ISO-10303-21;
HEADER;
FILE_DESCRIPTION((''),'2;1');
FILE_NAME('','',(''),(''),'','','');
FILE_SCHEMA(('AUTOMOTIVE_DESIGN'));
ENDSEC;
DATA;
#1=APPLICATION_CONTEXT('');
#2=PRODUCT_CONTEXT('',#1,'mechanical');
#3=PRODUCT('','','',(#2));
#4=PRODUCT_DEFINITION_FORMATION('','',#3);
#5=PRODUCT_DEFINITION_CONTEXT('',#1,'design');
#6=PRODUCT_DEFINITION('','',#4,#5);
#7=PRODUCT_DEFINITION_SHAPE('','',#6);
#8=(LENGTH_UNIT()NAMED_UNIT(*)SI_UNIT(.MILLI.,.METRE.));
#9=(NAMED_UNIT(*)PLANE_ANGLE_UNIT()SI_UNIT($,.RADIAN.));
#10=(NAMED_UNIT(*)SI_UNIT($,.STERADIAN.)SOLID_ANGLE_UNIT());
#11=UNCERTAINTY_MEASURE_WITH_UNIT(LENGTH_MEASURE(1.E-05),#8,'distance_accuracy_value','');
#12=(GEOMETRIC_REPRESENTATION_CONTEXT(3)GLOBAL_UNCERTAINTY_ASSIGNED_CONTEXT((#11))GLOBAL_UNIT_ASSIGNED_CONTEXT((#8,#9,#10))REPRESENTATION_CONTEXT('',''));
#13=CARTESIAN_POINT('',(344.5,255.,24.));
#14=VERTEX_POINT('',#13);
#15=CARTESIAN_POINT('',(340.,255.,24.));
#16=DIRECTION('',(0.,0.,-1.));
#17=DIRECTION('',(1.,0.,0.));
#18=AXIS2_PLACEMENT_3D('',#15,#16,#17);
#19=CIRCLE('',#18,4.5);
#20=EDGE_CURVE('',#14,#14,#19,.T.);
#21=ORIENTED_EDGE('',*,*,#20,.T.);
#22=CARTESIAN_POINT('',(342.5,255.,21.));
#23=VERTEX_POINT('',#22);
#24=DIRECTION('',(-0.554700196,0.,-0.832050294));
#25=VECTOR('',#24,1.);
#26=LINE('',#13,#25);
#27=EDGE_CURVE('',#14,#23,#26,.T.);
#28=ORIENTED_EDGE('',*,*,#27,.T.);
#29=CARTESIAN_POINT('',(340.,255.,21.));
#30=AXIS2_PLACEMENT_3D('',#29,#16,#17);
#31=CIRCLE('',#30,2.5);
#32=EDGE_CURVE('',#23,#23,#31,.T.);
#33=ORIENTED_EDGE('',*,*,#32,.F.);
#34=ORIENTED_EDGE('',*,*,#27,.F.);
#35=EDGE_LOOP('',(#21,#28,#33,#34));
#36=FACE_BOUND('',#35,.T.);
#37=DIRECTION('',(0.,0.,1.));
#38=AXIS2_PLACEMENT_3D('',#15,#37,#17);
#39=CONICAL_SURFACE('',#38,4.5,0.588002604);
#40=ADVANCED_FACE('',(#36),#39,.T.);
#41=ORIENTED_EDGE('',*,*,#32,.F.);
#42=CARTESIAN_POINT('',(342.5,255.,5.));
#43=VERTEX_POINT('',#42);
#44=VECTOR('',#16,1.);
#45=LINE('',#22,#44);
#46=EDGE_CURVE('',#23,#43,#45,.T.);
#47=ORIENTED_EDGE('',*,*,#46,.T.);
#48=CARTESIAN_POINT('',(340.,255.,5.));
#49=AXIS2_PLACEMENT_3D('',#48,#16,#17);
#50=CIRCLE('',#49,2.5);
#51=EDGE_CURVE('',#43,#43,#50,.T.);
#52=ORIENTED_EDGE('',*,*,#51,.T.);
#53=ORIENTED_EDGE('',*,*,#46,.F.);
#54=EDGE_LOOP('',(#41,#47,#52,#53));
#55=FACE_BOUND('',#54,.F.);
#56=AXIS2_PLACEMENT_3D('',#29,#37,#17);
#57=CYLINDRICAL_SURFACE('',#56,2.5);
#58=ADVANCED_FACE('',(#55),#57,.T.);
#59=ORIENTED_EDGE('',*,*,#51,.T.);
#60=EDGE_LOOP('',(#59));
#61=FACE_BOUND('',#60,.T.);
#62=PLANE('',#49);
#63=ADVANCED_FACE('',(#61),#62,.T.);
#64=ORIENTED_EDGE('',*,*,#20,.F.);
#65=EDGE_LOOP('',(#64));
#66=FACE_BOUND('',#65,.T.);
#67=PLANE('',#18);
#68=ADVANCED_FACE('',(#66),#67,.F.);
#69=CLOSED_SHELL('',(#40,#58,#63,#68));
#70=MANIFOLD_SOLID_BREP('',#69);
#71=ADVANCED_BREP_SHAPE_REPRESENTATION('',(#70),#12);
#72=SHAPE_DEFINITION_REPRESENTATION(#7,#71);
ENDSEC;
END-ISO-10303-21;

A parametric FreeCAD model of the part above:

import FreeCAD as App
import Part
import Sketcher
Q = App.Units.Quantity


def add_polygon(sketch, points):
    """Adds a closed chain of lines whose ends are joined by coincident constraints."""
    first, n = sketch.GeometryCount, len(points)
    for a, b in zip(points, points[1:] + points[:1]):
        sketch.addGeometry(Part.LineSegment(App.Vector(*a, 0), App.Vector(*b, 0)), False)
    for i in range(n):
        sketch.addConstraint(Sketcher.Constraint("Coincident", first + i, 2, first + (i + 1) % n, 1))

doc = App.newDocument("Part")
body = doc.addObject("PartDesign::Body", "Body")

sketch1 = body.newObject("Sketcher::SketchObject", "Sketch")
sketch1.AttachmentSupport = (doc.getObject("XZ_Plane"), [""])
sketch1.MapMode = "FlatFace"
add_polygon(sketch1, [(0, -3), (4.5, -3), (2.5, 0), (0, 0)])
sketch1.addConstraint([
    Sketcher.Constraint("Horizontal", 0),
    Sketcher.Constraint("Horizontal", 2),
    Sketcher.Constraint("Vertical", 3),
    Sketcher.Constraint("Coincident", 2, 2, -1, 1),
    Sketcher.Constraint("DistanceY", 3, 2, 3, 1, Q("3 mm")),
    Sketcher.Constraint("DistanceX", 0, 1, 0, 2, Q("4.5 mm")),
    Sketcher.Constraint("DistanceX", 2, 2, 2, 1, Q("2.5 mm")),
])
revolution = body.newObject("PartDesign::Revolution", "Revolution")
revolution.Profile = sketch1
revolution.ReferenceAxis = (sketch1, ["V_Axis"])
revolution.Angle = 360
body2 = doc.addObject("PartDesign::Body", "Body001")

sketch2 = body2.newObject("Sketcher::SketchObject", "Sketch001")
sketch2.AttachmentSupport = (doc.getObject("XY_Plane001"), [""])
sketch2.MapMode = "FlatFace"
sketch2.addGeometry(Part.Circle(App.Vector(0, 0, 0), App.Vector(0, 0, 1), 2.5), False)
sketch2.addConstraint([
    Sketcher.Constraint("Coincident", 0, 3, -1, 1),
    Sketcher.Constraint("Diameter", 0, Q("5 mm")),
])
pad1 = body2.newObject("PartDesign::Pad", "Pad")
pad1.Profile = sketch2
pad1.Length = 16
doc.recompute()

boolean = body2.newObject("PartDesign::Boolean", "Boolean")
boolean.Type = "Fuse"
boolean.addObjects([body])
body3 = doc.addObject("PartDesign::Body", "Body002")
doc.recompute()

body2.Placement = App.Placement(App.Vector(45, 15, 21), App.Rotation(App.Vector(0, 1, 0), 180))
boolean2 = body3.newObject("PartDesign::Boolean", "Boolean001")
boolean2.Type = "Fuse"
boolean2.addObjects([body2])
body4 = doc.addObject("PartDesign::Body", "Body003")
doc.recompute()

body3.Placement = App.Placement(App.Vector(115, 270, 0), App.Rotation(App.Vector(0, 0, 1), 180))
boolean3 = body4.newObject("PartDesign::Boolean", "Boolean002")
boolean3.Type = "Fuse"
boolean3.addObjects([body3])
body5 = doc.addObject("PartDesign::Body", "Body004")
doc.recompute()

body4.Placement = App.Placement(App.Vector(270, 0, 0), App.Rotation(App.Vector(0, 0, 1), 0))
boolean4 = body5.newObject("PartDesign::Boolean", "Boolean003")
boolean4.Type = "Fuse"
boolean4.addObjects([body4])

doc.recompute()
